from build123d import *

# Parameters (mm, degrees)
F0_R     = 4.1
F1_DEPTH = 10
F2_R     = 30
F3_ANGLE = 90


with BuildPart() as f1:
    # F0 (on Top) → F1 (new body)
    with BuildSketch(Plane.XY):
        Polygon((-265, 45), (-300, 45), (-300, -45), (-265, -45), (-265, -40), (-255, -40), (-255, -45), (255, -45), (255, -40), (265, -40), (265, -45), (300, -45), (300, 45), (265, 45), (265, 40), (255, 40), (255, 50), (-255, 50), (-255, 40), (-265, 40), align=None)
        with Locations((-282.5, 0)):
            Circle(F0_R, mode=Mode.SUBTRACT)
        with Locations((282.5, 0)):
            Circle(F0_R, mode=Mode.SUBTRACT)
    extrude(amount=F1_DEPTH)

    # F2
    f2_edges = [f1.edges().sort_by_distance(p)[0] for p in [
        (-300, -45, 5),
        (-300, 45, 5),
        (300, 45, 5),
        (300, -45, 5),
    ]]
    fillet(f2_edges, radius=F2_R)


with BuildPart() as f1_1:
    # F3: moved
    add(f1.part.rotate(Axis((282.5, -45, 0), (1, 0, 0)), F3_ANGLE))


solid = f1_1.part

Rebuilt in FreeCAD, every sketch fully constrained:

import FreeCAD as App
import Part
import Sketcher
from FreeCAD import Vector
Q = App.Units.Quantity


def edges_at(feature, points):
    """Names of the edges that pass closest to the given points."""
    edges = feature.Shape.Edges
    near = lambda p: min(range(len(edges)), key=lambda i: edges[i].distToShape(Part.Vertex(*p))[0])
    return sorted({f"Edge{near(p) + 1}" for p in points})

doc = App.newDocument("Part")
body = doc.addObject("PartDesign::Body", "Body")

# Sketch on XY plane
sketch1 = doc.addObject("Sketcher::SketchObject", "Sketch")
body.addObject(sketch1)
sketch1.AttachmentSupport = (doc.XY_Plane, [""])
sketch1.MapMode = "FlatFace"
sketch1.addGeometry([
    Part.LineSegment(Vector(-265, 45, 0), Vector(-300, 45, 0)),  # 0
    Part.LineSegment(Vector(-300, 45, 0), Vector(-300, -45, 0)),  # 1
    Part.LineSegment(Vector(-300, -45, 0), Vector(-265, -45, 0)),  # 2
    Part.LineSegment(Vector(-265, -45, 0), Vector(-265, -40, 0)),  # 3
    Part.LineSegment(Vector(-265, -40, 0), Vector(-255, -40, 0)),  # 4
    Part.LineSegment(Vector(-255, -40, 0), Vector(-255, -45, 0)),  # 5
    Part.LineSegment(Vector(-255, -45, 0), Vector(255, -45, 0)),  # 6
    Part.LineSegment(Vector(255, -45, 0), Vector(255, -40, 0)),  # 7
    Part.LineSegment(Vector(255, -40, 0), Vector(265, -40, 0)),  # 8
    Part.LineSegment(Vector(265, -40, 0), Vector(265, -45, 0)),  # 9
    Part.LineSegment(Vector(265, -45, 0), Vector(300, -45, 0)),  # 10
    Part.LineSegment(Vector(300, -45, 0), Vector(300, 45, 0)),  # 11
    Part.LineSegment(Vector(300, 45, 0), Vector(265, 45, 0)),  # 12
    Part.LineSegment(Vector(265, 45, 0), Vector(265, 40, 0)),  # 13
    Part.LineSegment(Vector(265, 40, 0), Vector(255, 40, 0)),  # 14
    Part.LineSegment(Vector(255, 40, 0), Vector(255, 50, 0)),  # 15
    Part.LineSegment(Vector(255, 50, 0), Vector(-255, 50, 0)),  # 16
    Part.LineSegment(Vector(-255, 50, 0), Vector(-255, 40, 0)),  # 17
    Part.LineSegment(Vector(-255, 40, 0), Vector(-265, 40, 0)),  # 18
    Part.LineSegment(Vector(-265, 40, 0), Vector(-265, 45, 0)),  # 19
    Part.Circle(Vector(-282.5, 0, 0), Vector(0, 0, 1), 4.1),  # 20
    Part.Circle(Vector(282.5, 0, 0), Vector(0, 0, 1), 4.1),  # 21
], False)
sketch1.addConstraint([
    Sketcher.Constraint("Coincident", 0, 2, 1, 1),
    Sketcher.Constraint("Coincident", 1, 2, 2, 1),
    Sketcher.Constraint("Coincident", 2, 2, 3, 1),
    Sketcher.Constraint("Coincident", 3, 2, 4, 1),
    Sketcher.Constraint("Coincident", 4, 2, 5, 1),
    Sketcher.Constraint("Coincident", 5, 2, 6, 1),
    Sketcher.Constraint("Coincident", 6, 2, 7, 1),
    Sketcher.Constraint("Coincident", 7, 2, 8, 1),
    Sketcher.Constraint("Coincident", 8, 2, 9, 1),
    Sketcher.Constraint("Coincident", 9, 2, 10, 1),
    Sketcher.Constraint("Coincident", 10, 2, 11, 1),
    Sketcher.Constraint("Coincident", 11, 2, 12, 1),
    Sketcher.Constraint("Coincident", 12, 2, 13, 1),
    Sketcher.Constraint("Coincident", 13, 2, 14, 1),
    Sketcher.Constraint("Coincident", 14, 2, 15, 1),
    Sketcher.Constraint("Coincident", 15, 2, 16, 1),
    Sketcher.Constraint("Coincident", 16, 2, 17, 1),
    Sketcher.Constraint("Coincident", 17, 2, 18, 1),
    Sketcher.Constraint("Coincident", 18, 2, 19, 1),
    Sketcher.Constraint("Coincident", 19, 2, 0, 1),
    Sketcher.Constraint("Horizontal", 0),
    Sketcher.Constraint("Vertical", 1),
    Sketcher.Constraint("Horizontal", 2),
    Sketcher.Constraint("Vertical", 3),
    Sketcher.Constraint("Horizontal", 4),
    Sketcher.Constraint("Vertical", 5),
    Sketcher.Constraint("Horizontal", 6),
    Sketcher.Constraint("Vertical", 7),
    Sketcher.Constraint("Horizontal", 8),
    Sketcher.Constraint("Vertical", 9),
    Sketcher.Constraint("Horizontal", 10),
    Sketcher.Constraint("Vertical", 11),
    Sketcher.Constraint("Horizontal", 12),
    Sketcher.Constraint("Vertical", 13),
    Sketcher.Constraint("Horizontal", 14),
    Sketcher.Constraint("Vertical", 15),
    Sketcher.Constraint("Horizontal", 16),
    Sketcher.Constraint("Vertical", 17),
    Sketcher.Constraint("Horizontal", 18),
    Sketcher.Constraint("Vertical", 19),
    Sketcher.Constraint("Equal", 20, 21),
    Sketcher.Constraint("Symmetric", 20, 3, 21, 3, -1, 1),
    Sketcher.Constraint("Symmetric", 0, 2, 10, 2, -1, 1),
    Sketcher.Constraint("Symmetric", 2, 2, 12, 2, -1, 1),
    Sketcher.Constraint("Symmetric", 4, 2, 14, 2, -1, 1),
    Sketcher.Constraint("Symmetric", 7, 2, 17, 2, -1, 1),
    Sketcher.Constraint("Symmetric", 4, 2, 7, 2, -2),
    Sketcher.Constraint("Symmetric", 2, 2, 9, 2, -2),
    Sketcher.Constraint("PointOnObject", 20, 3, -1),
    Sketcher.Constraint("Horizontal", 2, 2, 5, 2),
    Sketcher.Constraint("Vertical", 3, 2, 18, 2),
    Sketcher.Constraint("Equal", 18, 15),
    Sketcher.Constraint("Diameter", 20, Q("8.2 mm")),
    Sketcher.Constraint("DistanceX", 0, 2, 0, 1, Q("35 mm")),
    Sketcher.Constraint("DistanceX", 4, 1, 4, 2, Q("10 mm")),
    Sketcher.Constraint("DistanceX", 6, 1, 6, 2, Q("510 mm")),
    Sketcher.Constraint("DistanceY", 1, 2, 1, 1, Q("90 mm")),
    Sketcher.Constraint("DistanceY", 3, 1, 3, 2, Q("5 mm")),
    Sketcher.Constraint("DistanceX", 20, 3, 21, 3, Q("565 mm")),
])
pad1 = doc.addObject("PartDesign::Pad", "Pad")
body.addObject(pad1)
pad1.Profile = sketch1
pad1.Length = 10
doc.recompute()

fillet = doc.addObject("PartDesign::Fillet", "Fillet")
body.addObject(fillet)
fillet.Base = (pad1, edges_at(pad1, [
    (-300, -45, 5),
    (-300, 45, 5),
    (300, 45, 5),
    (300, -45, 5),
]))
fillet.Radius = 30
body2 = doc.addObject("PartDesign::Body", "Body001")
doc.recompute()

body.Placement = App.Placement(Vector(0, -45, 45), App.Rotation(Vector(1, 0, 0), 90))
boolean = doc.addObject("PartDesign::Boolean", "Boolean")
body2.addObject(boolean)
boolean.Type = "Fuse"
boolean.addObjects([body])

doc.recompute()
